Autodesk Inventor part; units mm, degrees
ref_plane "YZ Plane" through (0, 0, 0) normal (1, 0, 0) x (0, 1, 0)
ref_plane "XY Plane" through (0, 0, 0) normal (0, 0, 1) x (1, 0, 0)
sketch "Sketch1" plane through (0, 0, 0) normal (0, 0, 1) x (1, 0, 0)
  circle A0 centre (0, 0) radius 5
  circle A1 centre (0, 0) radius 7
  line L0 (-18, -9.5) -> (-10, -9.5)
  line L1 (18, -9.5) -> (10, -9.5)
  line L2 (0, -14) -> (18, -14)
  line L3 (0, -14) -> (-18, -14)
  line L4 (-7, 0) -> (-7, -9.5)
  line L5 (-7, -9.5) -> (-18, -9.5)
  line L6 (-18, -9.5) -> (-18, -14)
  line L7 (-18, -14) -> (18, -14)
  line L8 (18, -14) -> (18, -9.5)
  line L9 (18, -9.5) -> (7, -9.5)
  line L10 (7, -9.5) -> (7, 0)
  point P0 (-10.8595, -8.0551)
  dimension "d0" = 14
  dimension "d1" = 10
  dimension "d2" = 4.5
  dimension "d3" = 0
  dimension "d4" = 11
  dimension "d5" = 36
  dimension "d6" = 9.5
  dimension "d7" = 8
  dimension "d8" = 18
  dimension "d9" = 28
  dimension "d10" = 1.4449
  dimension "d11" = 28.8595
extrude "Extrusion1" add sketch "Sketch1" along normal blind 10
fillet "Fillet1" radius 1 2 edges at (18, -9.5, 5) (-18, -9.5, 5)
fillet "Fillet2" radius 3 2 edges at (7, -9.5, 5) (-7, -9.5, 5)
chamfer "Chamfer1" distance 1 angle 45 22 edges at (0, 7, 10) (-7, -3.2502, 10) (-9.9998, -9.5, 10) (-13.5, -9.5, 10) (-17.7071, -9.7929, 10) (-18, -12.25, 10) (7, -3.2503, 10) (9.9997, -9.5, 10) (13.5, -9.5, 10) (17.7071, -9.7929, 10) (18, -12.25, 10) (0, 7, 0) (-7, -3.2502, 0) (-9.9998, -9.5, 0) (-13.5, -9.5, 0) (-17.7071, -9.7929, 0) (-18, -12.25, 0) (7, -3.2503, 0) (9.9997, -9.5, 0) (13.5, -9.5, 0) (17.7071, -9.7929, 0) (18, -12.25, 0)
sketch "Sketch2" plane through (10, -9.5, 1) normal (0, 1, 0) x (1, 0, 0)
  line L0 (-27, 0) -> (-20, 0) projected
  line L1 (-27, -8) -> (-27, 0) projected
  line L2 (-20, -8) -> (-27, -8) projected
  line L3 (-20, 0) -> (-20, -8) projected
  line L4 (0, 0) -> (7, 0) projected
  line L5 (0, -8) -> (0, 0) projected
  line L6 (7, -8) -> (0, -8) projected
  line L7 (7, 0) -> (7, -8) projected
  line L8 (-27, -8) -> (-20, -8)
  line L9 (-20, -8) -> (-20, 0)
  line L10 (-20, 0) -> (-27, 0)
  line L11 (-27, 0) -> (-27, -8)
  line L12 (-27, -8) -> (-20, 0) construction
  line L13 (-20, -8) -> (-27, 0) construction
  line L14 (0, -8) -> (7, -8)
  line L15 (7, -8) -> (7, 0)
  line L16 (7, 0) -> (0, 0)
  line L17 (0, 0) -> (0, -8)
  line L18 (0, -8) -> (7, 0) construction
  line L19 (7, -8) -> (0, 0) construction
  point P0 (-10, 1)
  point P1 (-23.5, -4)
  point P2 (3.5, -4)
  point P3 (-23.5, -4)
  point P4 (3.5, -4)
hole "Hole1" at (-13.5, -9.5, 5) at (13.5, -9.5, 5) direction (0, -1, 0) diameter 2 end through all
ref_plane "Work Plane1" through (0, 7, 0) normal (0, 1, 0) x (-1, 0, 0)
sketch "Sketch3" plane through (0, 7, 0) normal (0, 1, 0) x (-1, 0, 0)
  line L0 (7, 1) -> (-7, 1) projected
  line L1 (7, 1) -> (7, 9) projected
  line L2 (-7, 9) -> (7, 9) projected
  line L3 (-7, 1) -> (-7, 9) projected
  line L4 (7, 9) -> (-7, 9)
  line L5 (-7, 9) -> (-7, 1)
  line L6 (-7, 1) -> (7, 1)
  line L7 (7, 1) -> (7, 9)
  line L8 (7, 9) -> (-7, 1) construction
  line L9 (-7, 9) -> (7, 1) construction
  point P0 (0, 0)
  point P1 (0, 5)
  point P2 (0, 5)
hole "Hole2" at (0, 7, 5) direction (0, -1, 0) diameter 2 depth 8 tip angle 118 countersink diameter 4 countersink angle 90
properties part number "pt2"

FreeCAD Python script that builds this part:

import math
import FreeCAD as App
import Part
import Sketcher
from FreeCAD import Vector
Q = App.Units.Quantity


def edges_at(feature, points):
    """Names of the edges that pass closest to the given points."""
    edges = feature.Shape.Edges
    near = lambda p: min(range(len(edges)), key=lambda i: edges[i].distToShape(Part.Vertex(*p))[0])
    return sorted({f"Edge{near(p) + 1}" for p in points})

doc = App.newDocument("Part")
params = doc.addObject("Spreadsheet::Sheet", "Params")
for row, (alias, value) in enumerate([
    ("sketch1_diameter", "10 mm"),
    ("sketch1_radius", "7 mm"),
    ("sketch1_width", "11 mm"),
    ("sketch1_height", "9.5 mm"),
    ("sketch1_height2", "4.5 mm"),
    ("pad1_length", "10 mm"),
    ("fillet_radius", "1 mm"),
    ("fillet2_radius", "3 mm"),
    ("chamfer_size", "1 mm"),
    ("sketch2_diameter", "2 mm"),
    ("hole_diameter", "2 mm"),
    ("sketch3_diameter", "2 mm"),
    ("hole2_diameter", "2 mm"),
    ("hole2_depth", "8 mm"),
    ("hole2_csink_diameter", "4 mm"),
], start=1):
    params.set(f"A{row}", alias)
    params.set(f"B{row}", "=" + value)
    params.setAlias(f"B{row}", alias)

body = doc.addObject("PartDesign::Body", "Body")

# Sketch on XY plane
sketch1 = body.newObject("Sketcher::SketchObject", "Sketch")
sketch1.AttachmentSupport = (doc.getObject("XY_Plane"), [""])
sketch1.MapMode = "FlatFace"
sketch1.addGeometry(Part.ArcOfCircle(Part.Circle(Vector(0, 0, 0), Vector(0, 0, 1), 7), math.radians(0), math.radians(180)), False)
sketch1.addGeometry(Part.LineSegment(Vector(-7, 0, 0), Vector(-7, -9.5, 0)), False)
sketch1.addGeometry(Part.LineSegment(Vector(-7, -9.5, 0), Vector(-18, -9.5, 0)), False)
sketch1.addGeometry(Part.LineSegment(Vector(-18, -9.5, 0), Vector(-18, -14, 0)), False)
sketch1.addGeometry(Part.LineSegment(Vector(-18, -14, 0), Vector(18, -14, 0)), False)
sketch1.addGeometry(Part.LineSegment(Vector(18, -14, 0), Vector(18, -9.5, 0)), False)
sketch1.addGeometry(Part.LineSegment(Vector(18, -9.5, 0), Vector(7, -9.5, 0)), False)
sketch1.addGeometry(Part.LineSegment(Vector(7, -9.5, 0), Vector(7, 0, 0)), False)
sketch1.addGeometry(Part.Circle(Vector(0, 0, 0), Vector(0, 0, 1), 5), False)
sketch1.addConstraint(Sketcher.Constraint("Tangent", 0, 2, 1, 1))
sketch1.addConstraint(Sketcher.Constraint("Coincident", 1, 2, 2, 1))
sketch1.addConstraint(Sketcher.Constraint("Coincident", 2, 2, 3, 1))
sketch1.addConstraint(Sketcher.Constraint("Coincident", 3, 2, 4, 1))
sketch1.addConstraint(Sketcher.Constraint("Coincident", 4, 2, 5, 1))
sketch1.addConstraint(Sketcher.Constraint("Coincident", 5, 2, 6, 1))
sketch1.addConstraint(Sketcher.Constraint("Coincident", 6, 2, 7, 1))
sketch1.addConstraint(Sketcher.Constraint("Tangent", 7, 2, 0, 1))
sketch1.addConstraint(Sketcher.Constraint("Vertical", 1))
sketch1.addConstraint(Sketcher.Constraint("Horizontal", 2))
sketch1.addConstraint(Sketcher.Constraint("Vertical", 3))
sketch1.addConstraint(Sketcher.Constraint("Horizontal", 4))
sketch1.addConstraint(Sketcher.Constraint("Vertical", 5))
sketch1.addConstraint(Sketcher.Constraint("Horizontal", 6))
sketch1.addConstraint(Sketcher.Constraint("Vertical", 7))
sketch1.addConstraint(Sketcher.Constraint("Coincident", 0, 3, -1, 1))
sketch1.addConstraint(Sketcher.Constraint("Coincident", 8, 3, -1, 1))
sketch1.addConstraint(Sketcher.Constraint("Symmetric", 2, 2, 5, 2, -2))
sketch1.addConstraint(Sketcher.Constraint("Diameter", 8, Q("10 mm")))
sketch1.addConstraint(Sketcher.Constraint("Radius", 0, Q("7 mm")))
sketch1.addConstraint(Sketcher.Constraint("DistanceX", 2, 2, 2, 1, Q("11 mm")))
sketch1.addConstraint(Sketcher.Constraint("DistanceY", 1, 2, 1, 1, Q("9.5 mm")))
sketch1.addConstraint(Sketcher.Constraint("DistanceY", 3, 2, 3, 1, Q("4.5 mm")))
sketch1.setExpression("Constraints[18]", "Params.sketch1_diameter")
sketch1.setExpression("Constraints[19]", "Params.sketch1_radius")
sketch1.setExpression("Constraints[20]", "Params.sketch1_width")
sketch1.setExpression("Constraints[21]", "Params.sketch1_height")
sketch1.setExpression("Constraints[22]", "Params.sketch1_height2")
pad1 = body.newObject("PartDesign::Pad", "Pad")
pad1.Profile = sketch1
pad1.setExpression("Length", "Params.pad1_length")
doc.recompute()

fillet = body.newObject("PartDesign::Fillet", "Fillet")
fillet.Base = (pad1, edges_at(pad1, [(18, -9.5, 5), (-18, -9.5, 5)]))
fillet.setExpression("Radius", "Params.fillet_radius")
doc.recompute()

fillet2 = body.newObject("PartDesign::Fillet", "Fillet001")
fillet2.Base = (fillet, edges_at(fillet, [(7, -9.5, 5), (-7, -9.5, 5)]))
fillet2.setExpression("Radius", "Params.fillet2_radius")
doc.recompute()

chamfer = body.newObject("PartDesign::Chamfer", "Chamfer")
chamfer.Base = (fillet2, edges_at(fillet2, [
    (0, 7, 10),
    (-7, -3.25, 10),
    (-10, -9.5, 10),
    (-13.5, -9.5, 10),
    (-17.707, -9.793, 10),
    (-18, -12.25, 10),
    (7, -3.25, 10),
    (10, -9.5, 10),
    (13.5, -9.5, 10),
    (17.707, -9.793, 10),
    (18, -12.25, 10),
    (0, 7, 0),
    (-7, -3.25, 0),
    (-10, -9.5, 0),
    (-13.5, -9.5, 0),
    (-17.707, -9.793, 0),
    (-18, -12.25, 0),
    (7, -3.25, 0),
    (10, -9.5, 0),
    (13.5, -9.5, 0),
    (17.707, -9.793, 0),
    (18, -12.25, 0),
]))
chamfer.setExpression("Size", "Params.chamfer_size")

# Sketch on XZ plane
sketch2 = body.newObject("Sketcher::SketchObject", "Sketch001")
sketch2.AttachmentSupport = (doc.getObject("XZ_Plane"), [""])
sketch2.MapMode = "FlatFace"
sketch2.AttachmentOffset = App.Placement(Vector(0, 0, 9.5), App.Rotation())
sketch2.addGeometry(Part.Circle(Vector(-13.5, 5, 0), Vector(0, 0, 1), 1), False)
sketch2.addGeometry(Part.Circle(Vector(13.5, 5, 0), Vector(0, 0, 1), 1), False)
sketch2.addConstraint(Sketcher.Constraint("Equal", 0, 1))
sketch2.addConstraint(Sketcher.Constraint("Symmetric", 0, 3, 1, 3, -2))
sketch2.addConstraint(Sketcher.Constraint("Diameter", 0, Q("2 mm")))
sketch2.addConstraint(Sketcher.Constraint("DistanceY", -1, 1, 0, 3, Q("5 mm")))
sketch2.addConstraint(Sketcher.Constraint("DistanceX", 0, 3, 1, 3, Q("27 mm")))
sketch2.setExpression("Constraints[2]", "Params.sketch2_diameter")
doc.recompute()
hole = body.newObject("PartDesign::Hole", "Hole")
hole.Profile = sketch2
hole.ThreadType = "None"
hole.setExpression("Diameter", "Params.hole_diameter")
hole.DepthType = "ThroughAll"
hole.Reversed = True

# Sketch on XZ plane
sketch3 = body.newObject("Sketcher::SketchObject", "Sketch002")
sketch3.AttachmentSupport = (doc.getObject("XZ_Plane"), [""])
sketch3.MapMode = "FlatFace"
sketch3.AttachmentOffset = App.Placement(Vector(0, 0, -7), App.Rotation())
sketch3.addGeometry(Part.Circle(Vector(0, 5, 0), Vector(0, 0, 1), 1), False)
sketch3.addConstraint(Sketcher.Constraint("PointOnObject", 0, 3, -2))
sketch3.addConstraint(Sketcher.Constraint("Diameter", 0, Q("2 mm")))
sketch3.addConstraint(Sketcher.Constraint("DistanceY", -1, 1, 0, 3, Q("5 mm")))
sketch3.setExpression("Constraints[1]", "Params.sketch3_diameter")
doc.recompute()
hole2 = body.newObject("PartDesign::Hole", "Hole001")
hole2.Profile = sketch3
hole2.ThreadType = "None"
hole2.setExpression("Diameter", "Params.hole2_diameter")
hole2.DepthType = "Dimension"
hole2.setExpression("Depth", "Params.hole2_depth")
hole2.DrillPoint = "Angled"
hole2.DrillPointAngle = 118
hole2.HoleCutType = "Countersink"
hole2.setExpression("HoleCutDiameter", "Params.hole2_csink_diameter")
hole2.HoleCutCountersinkAngle = 90
hole2.Reversed = True

doc.recompute()
